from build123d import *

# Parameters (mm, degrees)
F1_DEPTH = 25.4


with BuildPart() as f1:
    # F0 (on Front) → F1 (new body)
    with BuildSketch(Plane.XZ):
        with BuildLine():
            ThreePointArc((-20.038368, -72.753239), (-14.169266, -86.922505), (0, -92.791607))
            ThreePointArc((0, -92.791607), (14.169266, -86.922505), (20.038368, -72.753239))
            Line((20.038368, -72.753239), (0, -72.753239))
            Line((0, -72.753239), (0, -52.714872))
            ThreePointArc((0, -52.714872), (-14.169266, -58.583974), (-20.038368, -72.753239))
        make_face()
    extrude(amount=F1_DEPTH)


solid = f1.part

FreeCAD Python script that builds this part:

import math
import FreeCAD as App
import Part
import Sketcher

doc = App.newDocument("Part")
params = doc.addObject("Spreadsheet::Sheet", "Params")
for row, (alias, value) in enumerate([
    ("pad1_length", "1 in"),
], start=1):
    params.set(f"A{row}", alias)
    params.set(f"B{row}", "=" + value)
    params.setAlias(f"B{row}", alias)

body = doc.addObject("PartDesign::Body", "Body")

# Sketch on XZ plane
sketch1 = doc.addObject("Sketcher::SketchObject", "Sketch")
body.addObject(sketch1)
sketch1.AttachmentSupport = (doc.XZ_Plane, [""])
sketch1.MapMode = "FlatFace"
sketch1.addGeometry([
    Part.ArcOfCircle(Part.Circle(App.Vector(0, -73, 0), App.Vector(0, 0, 1), 20), math.radians(180), math.radians(270)),  # 0
    Part.ArcOfCircle(Part.Circle(App.Vector(0, -73, 0), App.Vector(0, 0, 1), 20), math.radians(-90), math.radians(0)),  # 1
    Part.LineSegment(App.Vector(20, -73, 0), App.Vector(0, -73, 0)),  # 2
    Part.LineSegment(App.Vector(0, -73, 0), App.Vector(0, -53, 0)),  # 3
    Part.ArcOfCircle(Part.Circle(App.Vector(0, -73, 0), App.Vector(0, 0, 1), 20), math.radians(90), math.radians(180)),  # 4
], False)
sketch1.addConstraint([
    Sketcher.Constraint("Tangent", 0, 2, 1, 1),
    Sketcher.Constraint("Coincident", 1, 2, 2, 1),
    Sketcher.Constraint("Coincident", 2, 2, 3, 1),
    Sketcher.Constraint("Coincident", 3, 2, 4, 1),
    Sketcher.Constraint("Tangent", 4, 2, 0, 1),
    Sketcher.Constraint("Horizontal", 2),
    Sketcher.Constraint("Vertical", 3),
    Sketcher.Constraint("Coincident", 2, 2, 0, 3),
    Sketcher.Constraint("Equal", 0, 1),
    Sketcher.Constraint("Equal", 1, 4),
    Sketcher.Constraint("Symmetric", 1, 2, 4, 2, -2),
    Sketcher.Constraint("PointOnObject", 0, 2, -2),
    Sketcher.Constraint("Radius", 0, 20.038368),
    Sketcher.Constraint("DistanceY", 0, 3, -1, 1, 72.753239),
])
pad1 = doc.addObject("PartDesign::Pad", "Pad")
body.addObject(pad1)
pad1.Profile = sketch1
pad1.setExpression("Length", "Params.pad1_length")

doc.recompute()
